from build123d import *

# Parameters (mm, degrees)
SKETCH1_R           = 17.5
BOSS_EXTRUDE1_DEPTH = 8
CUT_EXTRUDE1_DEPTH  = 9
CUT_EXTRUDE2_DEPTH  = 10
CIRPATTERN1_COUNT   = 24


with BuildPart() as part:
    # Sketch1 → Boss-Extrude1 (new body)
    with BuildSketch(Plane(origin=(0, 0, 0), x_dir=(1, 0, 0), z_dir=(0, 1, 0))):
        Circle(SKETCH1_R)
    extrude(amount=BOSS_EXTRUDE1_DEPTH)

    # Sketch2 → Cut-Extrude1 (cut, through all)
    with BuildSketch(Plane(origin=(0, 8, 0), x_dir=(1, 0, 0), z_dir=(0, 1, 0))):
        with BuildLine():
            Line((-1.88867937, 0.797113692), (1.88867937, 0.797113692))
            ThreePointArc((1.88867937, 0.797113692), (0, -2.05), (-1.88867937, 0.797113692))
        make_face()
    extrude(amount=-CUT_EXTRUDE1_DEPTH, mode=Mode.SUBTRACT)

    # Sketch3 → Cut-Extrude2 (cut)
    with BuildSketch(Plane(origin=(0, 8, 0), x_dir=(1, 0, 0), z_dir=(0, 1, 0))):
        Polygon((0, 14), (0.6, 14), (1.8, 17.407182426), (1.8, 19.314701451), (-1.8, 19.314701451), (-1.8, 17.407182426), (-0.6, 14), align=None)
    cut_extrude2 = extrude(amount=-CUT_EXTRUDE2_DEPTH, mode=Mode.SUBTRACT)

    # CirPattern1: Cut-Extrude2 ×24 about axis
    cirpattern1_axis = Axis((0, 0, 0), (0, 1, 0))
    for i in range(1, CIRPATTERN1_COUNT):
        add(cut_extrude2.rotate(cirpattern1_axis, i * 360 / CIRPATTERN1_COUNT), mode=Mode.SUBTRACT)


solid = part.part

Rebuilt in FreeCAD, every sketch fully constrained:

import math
import FreeCAD as App
import Part
import Sketcher

V = App.Vector


def add_polygon(sketch, points):
    """Adds a closed chain of lines whose ends are joined by coincident constraints."""
    first, n = sketch.GeometryCount, len(points)
    for a, b in zip(points, points[1:] + points[:1]):
        sketch.addGeometry(Part.LineSegment(App.Vector(*a, 0), App.Vector(*b, 0)), False)
    for i in range(n):
        sketch.addConstraint(Sketcher.Constraint("Coincident", first + i, 2, first + (i + 1) % n, 1))

doc = App.newDocument("Part")
body = doc.addObject("PartDesign::Body", "Body")

sketch1 = body.newObject("Sketcher::SketchObject", "Sketch")
sketch1.AttachmentSupport = (doc.getObject("XZ_Plane"), [""])
sketch1.MapMode = "FlatFace"
sketch1.addGeometry(Part.Circle(V(0, 0, 0), V(0, 0, 1), 18), False)
sketch1.addConstraint([
    Sketcher.Constraint("Coincident", 0, 3, -1, 1),
    Sketcher.Constraint("Diameter", 0, 35.0),
])
pad1 = body.newObject("PartDesign::Pad", "Pad")
pad1.Profile = sketch1
pad1.Length = 8
pad1.Reversed = True

sketch2 = body.newObject("Sketcher::SketchObject", "Sketch001")
sketch2.AttachmentSupport = (doc.getObject("XZ_Plane"), [""])
sketch2.MapMode = "FlatFace"
sketch2.AttachmentOffset = App.Placement(V(0, 0, -8), App.Rotation())
sketch2.addGeometry([
    Part.LineSegment(V(1.9, -0.8, 0), V(-1.9, -0.8, 0)),
    Part.ArcOfCircle(Part.Circle(V(0, 0, 0), V(0, 0, 1), 2), math.radians(-23), math.radians(203)),
], False)
sketch2.addConstraint([
    Sketcher.Constraint("Coincident", 0, 1, 1, 1),
    Sketcher.Constraint("Coincident", 1, 2, 0, 2),
    Sketcher.Constraint("Horizontal", 0),
    Sketcher.Constraint("Coincident", 1, 3, -1, 1),
    Sketcher.Constraint("Radius", 1, 2.05),
    Sketcher.Constraint("DistanceX", 0, 2, 0, 1, 3.777359),
])
pocket1 = body.newObject("PartDesign::Pocket", "Pocket")
pocket1.Profile = sketch2
pocket1.Type = "ThroughAll"
pocket1.Reversed = True

sketch3 = body.newObject("Sketcher::SketchObject", "Sketch002")
sketch3.AttachmentSupport = (doc.getObject("XZ_Plane"), [""])
sketch3.MapMode = "FlatFace"
sketch3.AttachmentOffset = App.Placement(V(0, 0, -8), App.Rotation())
add_polygon(sketch3, [(0.6, -14), (1.8, -17.4), (1.8, -19.3), (-1.8, -19.3), (-1.8, -17.4), (-0.6, -14)])
sketch3.addConstraint([
    Sketcher.Constraint("Vertical", 1),
    Sketcher.Constraint("Horizontal", 2),
    Sketcher.Constraint("Vertical", 3),
    Sketcher.Constraint("Horizontal", 5),
    Sketcher.Constraint("Symmetric", 0, 2, 3, 2, -2),
    Sketcher.Constraint("Equal", 0, 4),
    Sketcher.Constraint("DistanceX", 2, 2, 2, 1, 3.6),
    Sketcher.Constraint("DistanceX", 5, 1, 5, 2, 1.2),
    Sketcher.Constraint("DistanceY", 4, 2, -1, 1, 14.0),
    Sketcher.Constraint("DistanceY", 1, 2, 1, 1, 1.907519),
    Sketcher.Constraint("DistanceY", 1, 2, -1, 1, 19.314701),
])
pocket2 = body.newObject("PartDesign::Pocket", "Pocket001")
pocket2.Profile = sketch3
pocket2.Length = 10
pocket2.Reversed = True
doc.recompute()

polarpattern = body.newObject("PartDesign::PolarPattern", "PolarPattern")
polarpattern.Originals = [pocket2]
polarpattern.Axis = (doc.getObject("Y_Axis"), [""])
polarpattern.Angle = 360
polarpattern.Occurrences = 24
body.Tip = polarpattern

doc.recompute()
